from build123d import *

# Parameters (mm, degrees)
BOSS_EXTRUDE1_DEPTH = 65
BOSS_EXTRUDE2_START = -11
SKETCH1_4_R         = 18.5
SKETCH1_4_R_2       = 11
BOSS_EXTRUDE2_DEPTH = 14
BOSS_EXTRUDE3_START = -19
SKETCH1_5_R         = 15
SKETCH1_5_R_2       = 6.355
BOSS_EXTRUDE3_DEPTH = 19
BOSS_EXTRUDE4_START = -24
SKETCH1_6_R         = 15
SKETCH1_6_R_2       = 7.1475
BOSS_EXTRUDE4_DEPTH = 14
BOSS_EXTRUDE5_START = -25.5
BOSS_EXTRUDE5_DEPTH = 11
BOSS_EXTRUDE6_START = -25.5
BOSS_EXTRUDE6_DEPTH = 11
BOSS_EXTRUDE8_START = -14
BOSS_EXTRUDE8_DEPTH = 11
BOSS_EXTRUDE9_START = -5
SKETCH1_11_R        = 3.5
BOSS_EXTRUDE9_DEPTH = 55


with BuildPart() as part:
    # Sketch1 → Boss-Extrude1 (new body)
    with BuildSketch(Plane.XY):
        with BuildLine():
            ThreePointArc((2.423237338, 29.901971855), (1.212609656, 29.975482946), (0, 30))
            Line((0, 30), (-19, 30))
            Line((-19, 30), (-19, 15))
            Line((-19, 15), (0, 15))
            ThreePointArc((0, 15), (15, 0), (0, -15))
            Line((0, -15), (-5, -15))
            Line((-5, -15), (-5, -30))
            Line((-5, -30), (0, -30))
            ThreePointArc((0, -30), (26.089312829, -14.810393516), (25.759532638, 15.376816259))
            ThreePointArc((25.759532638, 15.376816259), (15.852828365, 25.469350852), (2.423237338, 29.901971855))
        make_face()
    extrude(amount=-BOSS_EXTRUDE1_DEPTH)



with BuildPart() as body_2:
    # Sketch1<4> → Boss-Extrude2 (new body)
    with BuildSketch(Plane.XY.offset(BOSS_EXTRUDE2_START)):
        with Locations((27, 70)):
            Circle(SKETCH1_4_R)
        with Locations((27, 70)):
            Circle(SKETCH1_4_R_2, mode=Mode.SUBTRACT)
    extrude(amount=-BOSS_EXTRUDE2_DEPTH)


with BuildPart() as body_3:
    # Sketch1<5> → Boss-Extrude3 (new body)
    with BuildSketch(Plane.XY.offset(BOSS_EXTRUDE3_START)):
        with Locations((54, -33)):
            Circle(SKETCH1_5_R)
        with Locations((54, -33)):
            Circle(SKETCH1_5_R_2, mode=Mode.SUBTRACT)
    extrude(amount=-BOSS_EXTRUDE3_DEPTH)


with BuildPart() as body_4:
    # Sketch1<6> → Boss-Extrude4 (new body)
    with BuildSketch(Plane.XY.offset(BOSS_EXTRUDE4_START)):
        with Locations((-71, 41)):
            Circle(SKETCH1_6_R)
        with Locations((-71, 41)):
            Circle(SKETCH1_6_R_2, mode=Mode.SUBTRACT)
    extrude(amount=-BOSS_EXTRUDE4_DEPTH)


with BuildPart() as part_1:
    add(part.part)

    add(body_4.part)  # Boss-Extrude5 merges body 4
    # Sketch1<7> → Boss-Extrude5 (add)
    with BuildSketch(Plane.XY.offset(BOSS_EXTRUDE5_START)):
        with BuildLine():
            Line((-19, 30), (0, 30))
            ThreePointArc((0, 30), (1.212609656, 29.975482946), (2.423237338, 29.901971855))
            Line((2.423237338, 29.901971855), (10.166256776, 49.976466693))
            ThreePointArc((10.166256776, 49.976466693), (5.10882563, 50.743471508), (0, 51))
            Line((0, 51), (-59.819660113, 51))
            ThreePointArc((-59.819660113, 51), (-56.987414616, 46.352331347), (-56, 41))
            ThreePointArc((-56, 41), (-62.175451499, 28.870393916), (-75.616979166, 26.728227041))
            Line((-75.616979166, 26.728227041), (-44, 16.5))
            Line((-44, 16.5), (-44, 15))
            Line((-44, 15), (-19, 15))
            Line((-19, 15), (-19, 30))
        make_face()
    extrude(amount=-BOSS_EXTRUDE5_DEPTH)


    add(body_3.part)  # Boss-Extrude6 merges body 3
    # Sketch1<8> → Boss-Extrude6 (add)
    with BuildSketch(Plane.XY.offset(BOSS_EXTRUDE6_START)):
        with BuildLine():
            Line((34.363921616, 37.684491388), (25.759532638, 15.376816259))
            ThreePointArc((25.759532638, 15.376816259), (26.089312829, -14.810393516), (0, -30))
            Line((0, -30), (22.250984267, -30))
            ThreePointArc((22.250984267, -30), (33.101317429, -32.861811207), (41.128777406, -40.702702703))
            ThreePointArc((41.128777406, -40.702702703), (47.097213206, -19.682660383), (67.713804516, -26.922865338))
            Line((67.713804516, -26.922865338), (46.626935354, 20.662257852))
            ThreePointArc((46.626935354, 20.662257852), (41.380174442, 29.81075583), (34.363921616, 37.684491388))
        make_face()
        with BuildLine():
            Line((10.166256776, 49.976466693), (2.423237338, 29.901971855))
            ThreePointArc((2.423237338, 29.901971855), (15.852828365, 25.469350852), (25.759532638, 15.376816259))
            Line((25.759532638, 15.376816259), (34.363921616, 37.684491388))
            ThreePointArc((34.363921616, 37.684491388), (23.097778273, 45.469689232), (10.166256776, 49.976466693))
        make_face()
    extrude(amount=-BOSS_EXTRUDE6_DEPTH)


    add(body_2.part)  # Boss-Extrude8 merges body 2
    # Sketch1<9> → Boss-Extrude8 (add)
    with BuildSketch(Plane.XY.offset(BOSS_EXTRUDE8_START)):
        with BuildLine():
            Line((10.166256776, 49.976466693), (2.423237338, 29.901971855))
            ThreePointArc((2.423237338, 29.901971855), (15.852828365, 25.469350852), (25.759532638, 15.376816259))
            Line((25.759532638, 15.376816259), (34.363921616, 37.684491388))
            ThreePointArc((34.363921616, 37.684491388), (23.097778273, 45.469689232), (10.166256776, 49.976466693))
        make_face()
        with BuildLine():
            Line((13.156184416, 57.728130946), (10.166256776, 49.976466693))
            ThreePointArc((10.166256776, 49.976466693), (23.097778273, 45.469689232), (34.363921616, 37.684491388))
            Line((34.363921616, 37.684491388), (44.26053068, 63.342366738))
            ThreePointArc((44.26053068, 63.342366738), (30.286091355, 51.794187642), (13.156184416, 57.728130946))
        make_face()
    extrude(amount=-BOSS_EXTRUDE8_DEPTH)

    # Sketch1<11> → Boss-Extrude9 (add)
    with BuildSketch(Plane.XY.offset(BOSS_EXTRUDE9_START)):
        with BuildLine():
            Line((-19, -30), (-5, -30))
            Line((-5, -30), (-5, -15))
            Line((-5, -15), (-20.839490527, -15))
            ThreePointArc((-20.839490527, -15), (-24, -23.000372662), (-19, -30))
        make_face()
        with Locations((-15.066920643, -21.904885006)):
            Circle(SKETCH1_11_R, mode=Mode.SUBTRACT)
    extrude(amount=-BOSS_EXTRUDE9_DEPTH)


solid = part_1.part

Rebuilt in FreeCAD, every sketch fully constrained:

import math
import FreeCAD as App
import Part
import Sketcher
Q = App.Units.Quantity

doc = App.newDocument("Part")
body = doc.addObject("PartDesign::Body", "Body")

sketch1 = body.newObject("Sketcher::SketchObject", "Sketch")
sketch1.AttachmentSupport = (doc.getObject("XY_Plane"), [""])
sketch1.MapMode = "FlatFace"
sketch1.addGeometry(Part.ArcOfCircle(Part.Circle(App.Vector(0, 0, 0), App.Vector(0, 0, 1), 30), math.radians(85.36691), math.radians(90)), False)
sketch1.addGeometry(Part.LineSegment(App.Vector(0, 30, 0), App.Vector(-19, 30, 0)), False)
sketch1.addGeometry(Part.LineSegment(App.Vector(-19, 30, 0), App.Vector(-19, 15, 0)), False)
sketch1.addGeometry(Part.LineSegment(App.Vector(-19, 15, 0), App.Vector(0, 15, 0)), False)
sketch1.addGeometry(Part.ArcOfCircle(Part.Circle(App.Vector(0, 0, 0), App.Vector(0, 0, 1), 15), math.radians(-90), math.radians(90)), False)
sketch1.addGeometry(Part.LineSegment(App.Vector(0, -15, 0), App.Vector(-5, -15, 0)), False)
sketch1.addGeometry(Part.LineSegment(App.Vector(-5, -15, 0), App.Vector(-5, -30, 0)), False)
sketch1.addGeometry(Part.LineSegment(App.Vector(-5, -30, 0), App.Vector(0, -30, 0)), False)
sketch1.addGeometry(Part.ArcOfCircle(Part.Circle(App.Vector(0, 0, 0), App.Vector(0, 0, 1), 30), math.radians(-90), math.radians(30.834537)), False)
sketch1.addGeometry(Part.ArcOfCircle(Part.Circle(App.Vector(0, 0, 0), App.Vector(0, 0, 1), 30), math.radians(30.834537), math.radians(85.36691)), False)
sketch1.addConstraint(Sketcher.Constraint("Tangent", 0, 2, 1, 1))
sketch1.addConstraint(Sketcher.Constraint("Coincident", 1, 2, 2, 1))
sketch1.addConstraint(Sketcher.Constraint("Coincident", 2, 2, 3, 1))
sketch1.addConstraint(Sketcher.Constraint("Tangent", 3, 2, 4, 2))
sketch1.addConstraint(Sketcher.Constraint("Tangent", 4, 1, 5, 1))
sketch1.addConstraint(Sketcher.Constraint("Coincident", 5, 2, 6, 1))
sketch1.addConstraint(Sketcher.Constraint("Coincident", 6, 2, 7, 1))
sketch1.addConstraint(Sketcher.Constraint("Tangent", 7, 2, 8, 1))
sketch1.addConstraint(Sketcher.Constraint("Tangent", 8, 2, 9, 1))
sketch1.addConstraint(Sketcher.Constraint("Tangent", 9, 2, 0, 1))
sketch1.addConstraint(Sketcher.Constraint("Horizontal", 1))
sketch1.addConstraint(Sketcher.Constraint("Vertical", 2))
sketch1.addConstraint(Sketcher.Constraint("Horizontal", 3))
sketch1.addConstraint(Sketcher.Constraint("Horizontal", 5))
sketch1.addConstraint(Sketcher.Constraint("Vertical", 6))
sketch1.addConstraint(Sketcher.Constraint("Horizontal", 7))
sketch1.addConstraint(Sketcher.Constraint("Coincident", 0, 3, -1, 1))
sketch1.addConstraint(Sketcher.Constraint("Coincident", 4, 3, -1, 1))
sketch1.addConstraint(Sketcher.Constraint("Coincident", 8, 3, -1, 1))
sketch1.addConstraint(Sketcher.Constraint("Radius", 0, Q("30 mm")))
sketch1.addConstraint(Sketcher.Constraint("Radius", 4, Q("15 mm")))
sketch1.addConstraint(Sketcher.Constraint("DistanceX", 1, 2, 1, 1, Q("19 mm")))
sketch1.addConstraint(Sketcher.Constraint("DistanceX", 5, 2, 5, 1, Q("5 mm")))
sketch1.addConstraint(Sketcher.Constraint("DistanceY", -1, 1, 9, 2, Q("29.901972 mm")))
sketch1.addConstraint(Sketcher.Constraint("DistanceX", -1, 1, 8, 2, Q("25.759533 mm")))
pad1 = body.newObject("PartDesign::Pad", "Pad")
pad1.Profile = sketch1
pad1.Length = 65
pad1.Reversed = True
body2 = doc.addObject("PartDesign::Body", "Body001")

sketch2 = body2.newObject("Sketcher::SketchObject", "Sketch001")
sketch2.AttachmentSupport = (doc.getObject("XY_Plane001"), [""])
sketch2.MapMode = "FlatFace"
sketch2.AttachmentOffset = App.Placement(App.Vector(0, 0, -11), App.Rotation())
sketch2.addGeometry(Part.Circle(App.Vector(27, 70, 0), App.Vector(0, 0, 1), 18.5), False)
sketch2.addGeometry(Part.Circle(App.Vector(27, 70, 0), App.Vector(0, 0, 1), 11), False)
sketch2.addConstraint(Sketcher.Constraint("Coincident", 1, 3, 0, 3))
sketch2.addConstraint(Sketcher.Constraint("Diameter", 0, Q("37 mm")))
sketch2.addConstraint(Sketcher.Constraint("Diameter", 1, Q("22 mm")))
sketch2.addConstraint(Sketcher.Constraint("DistanceX", -1, 1, 0, 3, Q("27 mm")))
sketch2.addConstraint(Sketcher.Constraint("DistanceY", -1, 1, 0, 3, Q("70 mm")))
pad2 = body2.newObject("PartDesign::Pad", "Pad001")
pad2.Profile = sketch2
pad2.Length = 14
pad2.Reversed = True
body3 = doc.addObject("PartDesign::Body", "Body002")

sketch3 = body3.newObject("Sketcher::SketchObject", "Sketch002")
sketch3.AttachmentSupport = (doc.getObject("XY_Plane002"), [""])
sketch3.MapMode = "FlatFace"
sketch3.AttachmentOffset = App.Placement(App.Vector(0, 0, -19), App.Rotation())
sketch3.addGeometry(Part.Circle(App.Vector(54, -33, 0), App.Vector(0, 0, 1), 15), False)
sketch3.addGeometry(Part.Circle(App.Vector(54, -33, 0), App.Vector(0, 0, 1), 6.355), False)
sketch3.addConstraint(Sketcher.Constraint("Coincident", 1, 3, 0, 3))
sketch3.addConstraint(Sketcher.Constraint("Diameter", 0, Q("30 mm")))
sketch3.addConstraint(Sketcher.Constraint("Diameter", 1, Q("12.71 mm")))
sketch3.addConstraint(Sketcher.Constraint("DistanceX", -1, 1, 0, 3, Q("54 mm")))
sketch3.addConstraint(Sketcher.Constraint("DistanceY", 0, 3, -1, 1, Q("33 mm")))
pad3 = body3.newObject("PartDesign::Pad", "Pad002")
pad3.Profile = sketch3
pad3.Length = 19
pad3.Reversed = True
body4 = doc.addObject("PartDesign::Body", "Body003")

sketch4 = body4.newObject("Sketcher::SketchObject", "Sketch003")
sketch4.AttachmentSupport = (doc.getObject("XY_Plane003"), [""])
sketch4.MapMode = "FlatFace"
sketch4.AttachmentOffset = App.Placement(App.Vector(0, 0, -24), App.Rotation())
sketch4.addGeometry(Part.Circle(App.Vector(-71, 41, 0), App.Vector(0, 0, 1), 15), False)
sketch4.addGeometry(Part.Circle(App.Vector(-71, 41, 0), App.Vector(0, 0, 1), 7.1475), False)
sketch4.addConstraint(Sketcher.Constraint("Coincident", 1, 3, 0, 3))
sketch4.addConstraint(Sketcher.Constraint("Diameter", 0, Q("30 mm")))
sketch4.addConstraint(Sketcher.Constraint("Diameter", 1, Q("14.295 mm")))
sketch4.addConstraint(Sketcher.Constraint("DistanceX", 0, 3, -1, 1, Q("71 mm")))
sketch4.addConstraint(Sketcher.Constraint("DistanceY", -1, 1, 0, 3, Q("41 mm")))
pad4 = body4.newObject("PartDesign::Pad", "Pad003")
pad4.Profile = sketch4
pad4.Length = 14
pad4.Reversed = True
body.AllowCompound = True
doc.recompute()

boolean = body.newObject("PartDesign::Boolean", "Boolean")
boolean.Type = "Fuse"
boolean.addObjects([body4])

sketch5 = body.newObject("Sketcher::SketchObject", "Sketch004")
sketch5.AttachmentSupport = (doc.getObject("XY_Plane"), [""])
sketch5.MapMode = "FlatFace"
sketch5.AttachmentOffset = App.Placement(App.Vector(0, 0, -25.5), App.Rotation())
sketch5.addGeometry(Part.LineSegment(App.Vector(-19, 30, 0), App.Vector(0, 30, 0)), False)
sketch5.addGeometry(Part.ArcOfCircle(Part.Circle(App.Vector(0, 0, 0), App.Vector(0, 0, 1), 30), math.radians(85.36691), math.radians(90)), False)
sketch5.addGeometry(Part.LineSegment(App.Vector(2.423237, 29.901972, 0), App.Vector(10.166257, 49.976467, 0)), False)
sketch5.addGeometry(Part.ArcOfCircle(Part.Circle(App.Vector(0, 0, 0), App.Vector(0, 0, 1), 51), math.radians(78.501729), math.radians(90)), False)
sketch5.addGeometry(Part.LineSegment(App.Vector(0, 51, 0), App.Vector(-59.81966, 51, 0)), False)
sketch5.addGeometry(Part.ArcOfCircle(Part.Circle(App.Vector(-71, 41, 0), App.Vector(0, 0, 1), 15), math.radians(0), math.radians(41.810315)), False)
sketch5.addGeometry(Part.ArcOfCircle(Part.Circle(App.Vector(-71, 41, 0), App.Vector(0, 0, 1), 15), math.radians(-107.926615), math.radians(0)), False)
sketch5.addGeometry(Part.LineSegment(App.Vector(-75.616979, 26.728227, 0), App.Vector(-44, 16.5, 0)), False)
sketch5.addGeometry(Part.LineSegment(App.Vector(-44, 16.5, 0), App.Vector(-44, 15, 0)), False)
sketch5.addGeometry(Part.LineSegment(App.Vector(-44, 15, 0), App.Vector(-19, 15, 0)), False)
sketch5.addGeometry(Part.LineSegment(App.Vector(-19, 15, 0), App.Vector(-19, 30, 0)), False)
sketch5.addConstraint(Sketcher.Constraint("Tangent", 0, 2, 1, 2))
sketch5.addConstraint(Sketcher.Constraint("Coincident", 1, 1, 2, 1))
sketch5.addConstraint(Sketcher.Constraint("Coincident", 2, 2, 3, 1))
sketch5.addConstraint(Sketcher.Constraint("Tangent", 3, 2, 4, 1))
sketch5.addConstraint(Sketcher.Constraint("Coincident", 4, 2, 5, 2))
sketch5.addConstraint(Sketcher.Constraint("Tangent", 5, 1, 6, 2))
sketch5.addConstraint(Sketcher.Constraint("Tangent", 6, 1, 7, 1))
sketch5.addConstraint(Sketcher.Constraint("Coincident", 7, 2, 8, 1))
sketch5.addConstraint(Sketcher.Constraint("Coincident", 8, 2, 9, 1))
sketch5.addConstraint(Sketcher.Constraint("Coincident", 9, 2, 10, 1))
sketch5.addConstraint(Sketcher.Constraint("Coincident", 10, 2, 0, 1))
sketch5.addConstraint(Sketcher.Constraint("Horizontal", 0))
sketch5.addConstraint(Sketcher.Constraint("Horizontal", 4))
sketch5.addConstraint(Sketcher.Constraint("Vertical", 8))
sketch5.addConstraint(Sketcher.Constraint("Horizontal", 9))
sketch5.addConstraint(Sketcher.Constraint("Vertical", 10))
sketch5.addConstraint(Sketcher.Constraint("Coincident", 1, 3, -1, 1))
sketch5.addConstraint(Sketcher.Constraint("Coincident", 3, 3, -1, 1))
sketch5.addConstraint(Sketcher.Constraint("Equal", 5, 6))
sketch5.addConstraint(Sketcher.Constraint("Horizontal", 6, 3, 5, 1))
sketch5.addConstraint(Sketcher.Constraint("Radius", 1, Q("30 mm")))
sketch5.addConstraint(Sketcher.Constraint("Radius", 3, Q("51 mm")))
sketch5.addConstraint(Sketcher.Constraint("Radius", 5, Q("15 mm")))
sketch5.addConstraint(Sketcher.Constraint("DistanceX", 0, 1, 0, 2, Q("19 mm")))
sketch5.addConstraint(Sketcher.Constraint("DistanceX", 9, 1, 9, 2, Q("25 mm")))
sketch5.addConstraint(Sketcher.Constraint("DistanceY", 10, 1, 10, 2, Q("15 mm")))
sketch5.addConstraint(Sketcher.Constraint("DistanceY", 8, 2, 8, 1, Q("1.5 mm")))
sketch5.addConstraint(Sketcher.Constraint("DistanceX", 5, 3, -1, 1, Q("71 mm")))
sketch5.addConstraint(Sketcher.Constraint("DistanceY", -1, 1, 5, 3, Q("41 mm")))
sketch5.addConstraint(Sketcher.Constraint("DistanceY", -1, 1, 1, 1, Q("29.901972 mm")))
sketch5.addConstraint(Sketcher.Constraint("DistanceX", 1, 1, 2, 2, Q("7.743019 mm")))
pad5 = body.newObject("PartDesign::Pad", "Pad004")
pad5.Profile = sketch5
pad5.Length = 11
pad5.Reversed = True
doc.recompute()

boolean2 = body.newObject("PartDesign::Boolean", "Boolean001")
boolean2.Type = "Fuse"
boolean2.addObjects([body3])

sketch6 = body.newObject("Sketcher::SketchObject", "Sketch005")
sketch6.AttachmentSupport = (doc.getObject("XY_Plane"), [""])
sketch6.MapMode = "FlatFace"
sketch6.AttachmentOffset = App.Placement(App.Vector(0, 0, -25.5), App.Rotation())
sketch6.addGeometry(Part.ArcOfCircle(Part.Circle(App.Vector(0, 0, 0), App.Vector(0, 0, 1), 30), math.radians(-90), math.radians(30.834537)), False)
sketch6.addGeometry(Part.LineSegment(App.Vector(0, -30, 0), App.Vector(22.250984, -30, 0)), False)
sketch6.addGeometry(Part.ArcOfCircle(Part.Circle(App.Vector(22.250984, -52, 0), App.Vector(0, 0, 1), 22), math.radians(30.898148), math.radians(90)), False)
sketch6.addGeometry(Part.ArcOfCircle(Part.Circle(App.Vector(54, -33, 0), App.Vector(0, 0, 1), 15), math.radians(23.900045), math.radians(210.898148)), False)
sketch6.addGeometry(Part.LineSegment(App.Vector(67.713805, -26.922865, 0), App.Vector(46.626935, 20.662258, 0)), False)
sketch6.addGeometry(Part.ArcOfCircle(Part.Circle(App.Vector(0, 0, 0), App.Vector(0, 0, 1), 51), math.radians(23.900045), math.radians(47.638783)), False)
sketch6.addGeometry(Part.ArcOfCircle(Part.Circle(App.Vector(0, 0, 0), App.Vector(0, 0, 1), 51), math.radians(47.638783), math.radians(78.501729)), False)
sketch6.addGeometry(Part.LineSegment(App.Vector(10.166257, 49.976467, 0), App.Vector(2.423237, 29.901972, 0)), False)
sketch6.addGeometry(Part.ArcOfCircle(Part.Circle(App.Vector(0, 0, 0), App.Vector(0, 0, 1), 30), math.radians(30.834537), math.radians(85.36691)), False)
sketch6.addConstraint(Sketcher.Constraint("Tangent", 0, 1, 1, 1))
sketch6.addConstraint(Sketcher.Constraint("Tangent", 1, 2, 2, 2))
sketch6.addConstraint(Sketcher.Constraint("Tangent", 2, 1, 3, 2))
sketch6.addConstraint(Sketcher.Constraint("Tangent", 3, 1, 4, 1))
sketch6.addConstraint(Sketcher.Constraint("Tangent", 4, 2, 5, 1))
sketch6.addConstraint(Sketcher.Constraint("Tangent", 5, 2, 6, 1))
sketch6.addConstraint(Sketcher.Constraint("Coincident", 6, 2, 7, 1))
sketch6.addConstraint(Sketcher.Constraint("Coincident", 7, 2, 8, 2))
sketch6.addConstraint(Sketcher.Constraint("Tangent", 8, 1, 0, 2))
sketch6.addConstraint(Sketcher.Constraint("Horizontal", 1))
sketch6.addConstraint(Sketcher.Constraint("Coincident", 0, 3, -1, 1))
sketch6.addConstraint(Sketcher.Constraint("Coincident", 5, 3, -1, 1))
sketch6.addConstraint(Sketcher.Constraint("Equal", 5, 6))
sketch6.addConstraint(Sketcher.Constraint("Equal", 0, 8))
sketch6.addConstraint(Sketcher.Constraint("Radius", 0, Q("30 mm")))
sketch6.addConstraint(Sketcher.Constraint("Radius", 2, Q("22 mm")))
sketch6.addConstraint(Sketcher.Constraint("Radius", 3, Q("15 mm")))
sketch6.addConstraint(Sketcher.Constraint("Radius", 5, Q("51 mm")))
sketch6.addConstraint(Sketcher.Constraint("DistanceX", -1, 1, 3, 3, Q("54 mm")))
sketch6.addConstraint(Sketcher.Constraint("DistanceY", 3, 3, -1, 1, Q("33 mm")))
sketch6.addConstraint(Sketcher.Constraint("DistanceX", -1, 1, 5, 2, Q("34.363922 mm")))
sketch6.addConstraint(Sketcher.Constraint("DistanceY", -1, 1, 7, 2, Q("29.901972 mm")))
sketch6.addConstraint(Sketcher.Constraint("DistanceX", 6, 2, 4, 2, Q("36.460679 mm")))
sketch6.addConstraint(Sketcher.Constraint("DistanceY", 8, 1, 4, 2, Q("5.285442 mm")))
pad6 = body.newObject("PartDesign::Pad", "Pad005")
pad6.Profile = sketch6
pad6.Length = 11
pad6.Reversed = True
doc.recompute()

boolean3 = body.newObject("PartDesign::Boolean", "Boolean002")
boolean3.Type = "Fuse"
boolean3.addObjects([body2])

sketch7 = body.newObject("Sketcher::SketchObject", "Sketch006")
sketch7.AttachmentSupport = (doc.getObject("XY_Plane"), [""])
sketch7.MapMode = "FlatFace"
sketch7.AttachmentOffset = App.Placement(App.Vector(0, 0, -14), App.Rotation())
sketch7.addGeometry(Part.LineSegment(App.Vector(10.166257, 49.976467, 0), App.Vector(2.423237, 29.901972, 0)), False)
sketch7.addGeometry(Part.ArcOfCircle(Part.Circle(App.Vector(0, 0, 0), App.Vector(0, 0, 1), 30), math.radians(30.834537), math.radians(85.36691)), False)
sketch7.addGeometry(Part.LineSegment(App.Vector(25.759533, 15.376816, 0), App.Vector(34.363922, 37.684491, 0)), False)
sketch7.addGeometry(Part.LineSegment(App.Vector(34.363922, 37.684491, 0), App.Vector(44.260531, 63.342367, 0)), False)
sketch7.addGeometry(Part.ArcOfCircle(Part.Circle(App.Vector(27, 70, 0), App.Vector(0, 0, 1), 18.5), math.radians(-138.444572), math.radians(-21.09234)), False)
sketch7.addGeometry(Part.LineSegment(App.Vector(13.156184, 57.728131, 0), App.Vector(10.166257, 49.976467, 0)), False)
sketch7.addConstraint(Sketcher.Constraint("Coincident", 0, 2, 1, 2))
sketch7.addConstraint(Sketcher.Constraint("Coincident", 1, 1, 2, 1))
sketch7.addConstraint(Sketcher.Constraint("Coincident", 2, 2, 3, 1))
sketch7.addConstraint(Sketcher.Constraint("Tangent", 3, 2, 4, 2))
sketch7.addConstraint(Sketcher.Constraint("Coincident", 4, 1, 5, 1))
sketch7.addConstraint(Sketcher.Constraint("Coincident", 5, 2, 0, 1))
sketch7.addConstraint(Sketcher.Constraint("Coincident", 1, 3, -1, 1))
sketch7.addConstraint(Sketcher.Constraint("Parallel", 0, 2))
sketch7.addConstraint(Sketcher.Constraint("Parallel", 2, 3))
sketch7.addConstraint(Sketcher.Constraint("Parallel", 3, 5))
sketch7.addConstraint(Sketcher.Constraint("Radius", 1, Q("30 mm")))
sketch7.addConstraint(Sketcher.Constraint("Radius", 4, Q("18.5 mm")))
sketch7.addConstraint(Sketcher.Constraint("DistanceX", -1, 1, 4, 3, Q("27 mm")))
sketch7.addConstraint(Sketcher.Constraint("DistanceY", -1, 1, 4, 3, Q("70 mm")))
sketch7.addConstraint(Sketcher.Constraint("DistanceX", 1, 1, 3, 2, Q("18.500998 mm")))
sketch7.addConstraint(Sketcher.Constraint("DistanceY", 5, 2, 3, 2, Q("13.3659 mm")))
sketch7.addConstraint(Sketcher.Constraint("DistanceY", -1, 1, 0, 2, Q("29.901972 mm")))
sketch7.addConstraint(Sketcher.Constraint("DistanceX", -1, 1, 2, 2, Q("34.363922 mm")))
pad7 = body.newObject("PartDesign::Pad", "Pad006")
pad7.Profile = sketch7
pad7.Length = 11
pad7.Reversed = True

sketch8 = body.newObject("Sketcher::SketchObject", "Sketch007")
sketch8.AttachmentSupport = (doc.getObject("XY_Plane"), [""])
sketch8.MapMode = "FlatFace"
sketch8.AttachmentOffset = App.Placement(App.Vector(0, 0, -5), App.Rotation())
sketch8.addGeometry(Part.LineSegment(App.Vector(-19, -30, 0), App.Vector(-5, -30, 0)), False)
sketch8.addGeometry(Part.LineSegment(App.Vector(-5, -30, 0), App.Vector(-5, -15, 0)), False)
sketch8.addGeometry(Part.LineSegment(App.Vector(-5, -15, 0), App.Vector(-20.839491, -15, 0)), False)
sketch8.addGeometry(Part.ArcOfCircle(Part.Circle(App.Vector(-15.066921, -21.904885, 0), App.Vector(0, 0, 1), 9), math.radians(129.896043), math.radians(244.086813)), False)
sketch8.addGeometry(Part.Circle(App.Vector(-15.066921, -21.904885, 0), App.Vector(0, 0, 1), 3.5), False)
sketch8.addConstraint(Sketcher.Constraint("Coincident", 0, 2, 1, 1))
sketch8.addConstraint(Sketcher.Constraint("Coincident", 1, 2, 2, 1))
sketch8.addConstraint(Sketcher.Constraint("Coincident", 2, 2, 3, 1))
sketch8.addConstraint(Sketcher.Constraint("Coincident", 3, 2, 0, 1))
sketch8.addConstraint(Sketcher.Constraint("Horizontal", 0))
sketch8.addConstraint(Sketcher.Constraint("Vertical", 1))
sketch8.addConstraint(Sketcher.Constraint("Horizontal", 2))
sketch8.addConstraint(Sketcher.Constraint("Coincident", 4, 3, 3, 3))
sketch8.addConstraint(Sketcher.Constraint("Diameter", 4, Q("7 mm")))
sketch8.addConstraint(Sketcher.Constraint("Radius", 3, Q("9 mm")))
sketch8.addConstraint(Sketcher.Constraint("DistanceX", 0, 1, 0, 2, Q("14 mm")))
sketch8.addConstraint(Sketcher.Constraint("DistanceY", 1, 1, 1, 2, Q("15 mm")))
sketch8.addConstraint(Sketcher.Constraint("DistanceX", 0, 2, -1, 1, Q("5 mm")))
sketch8.addConstraint(Sketcher.Constraint("DistanceY", 0, 2, -1, 1, Q("30 mm")))
sketch8.addConstraint(Sketcher.Constraint("DistanceX", 2, 2, 2, 1, Q("15.839491 mm")))
pad8 = body.newObject("PartDesign::Pad", "Pad007")
pad8.Profile = sketch8
pad8.Length = 55
pad8.Reversed = True

doc.recompute()
